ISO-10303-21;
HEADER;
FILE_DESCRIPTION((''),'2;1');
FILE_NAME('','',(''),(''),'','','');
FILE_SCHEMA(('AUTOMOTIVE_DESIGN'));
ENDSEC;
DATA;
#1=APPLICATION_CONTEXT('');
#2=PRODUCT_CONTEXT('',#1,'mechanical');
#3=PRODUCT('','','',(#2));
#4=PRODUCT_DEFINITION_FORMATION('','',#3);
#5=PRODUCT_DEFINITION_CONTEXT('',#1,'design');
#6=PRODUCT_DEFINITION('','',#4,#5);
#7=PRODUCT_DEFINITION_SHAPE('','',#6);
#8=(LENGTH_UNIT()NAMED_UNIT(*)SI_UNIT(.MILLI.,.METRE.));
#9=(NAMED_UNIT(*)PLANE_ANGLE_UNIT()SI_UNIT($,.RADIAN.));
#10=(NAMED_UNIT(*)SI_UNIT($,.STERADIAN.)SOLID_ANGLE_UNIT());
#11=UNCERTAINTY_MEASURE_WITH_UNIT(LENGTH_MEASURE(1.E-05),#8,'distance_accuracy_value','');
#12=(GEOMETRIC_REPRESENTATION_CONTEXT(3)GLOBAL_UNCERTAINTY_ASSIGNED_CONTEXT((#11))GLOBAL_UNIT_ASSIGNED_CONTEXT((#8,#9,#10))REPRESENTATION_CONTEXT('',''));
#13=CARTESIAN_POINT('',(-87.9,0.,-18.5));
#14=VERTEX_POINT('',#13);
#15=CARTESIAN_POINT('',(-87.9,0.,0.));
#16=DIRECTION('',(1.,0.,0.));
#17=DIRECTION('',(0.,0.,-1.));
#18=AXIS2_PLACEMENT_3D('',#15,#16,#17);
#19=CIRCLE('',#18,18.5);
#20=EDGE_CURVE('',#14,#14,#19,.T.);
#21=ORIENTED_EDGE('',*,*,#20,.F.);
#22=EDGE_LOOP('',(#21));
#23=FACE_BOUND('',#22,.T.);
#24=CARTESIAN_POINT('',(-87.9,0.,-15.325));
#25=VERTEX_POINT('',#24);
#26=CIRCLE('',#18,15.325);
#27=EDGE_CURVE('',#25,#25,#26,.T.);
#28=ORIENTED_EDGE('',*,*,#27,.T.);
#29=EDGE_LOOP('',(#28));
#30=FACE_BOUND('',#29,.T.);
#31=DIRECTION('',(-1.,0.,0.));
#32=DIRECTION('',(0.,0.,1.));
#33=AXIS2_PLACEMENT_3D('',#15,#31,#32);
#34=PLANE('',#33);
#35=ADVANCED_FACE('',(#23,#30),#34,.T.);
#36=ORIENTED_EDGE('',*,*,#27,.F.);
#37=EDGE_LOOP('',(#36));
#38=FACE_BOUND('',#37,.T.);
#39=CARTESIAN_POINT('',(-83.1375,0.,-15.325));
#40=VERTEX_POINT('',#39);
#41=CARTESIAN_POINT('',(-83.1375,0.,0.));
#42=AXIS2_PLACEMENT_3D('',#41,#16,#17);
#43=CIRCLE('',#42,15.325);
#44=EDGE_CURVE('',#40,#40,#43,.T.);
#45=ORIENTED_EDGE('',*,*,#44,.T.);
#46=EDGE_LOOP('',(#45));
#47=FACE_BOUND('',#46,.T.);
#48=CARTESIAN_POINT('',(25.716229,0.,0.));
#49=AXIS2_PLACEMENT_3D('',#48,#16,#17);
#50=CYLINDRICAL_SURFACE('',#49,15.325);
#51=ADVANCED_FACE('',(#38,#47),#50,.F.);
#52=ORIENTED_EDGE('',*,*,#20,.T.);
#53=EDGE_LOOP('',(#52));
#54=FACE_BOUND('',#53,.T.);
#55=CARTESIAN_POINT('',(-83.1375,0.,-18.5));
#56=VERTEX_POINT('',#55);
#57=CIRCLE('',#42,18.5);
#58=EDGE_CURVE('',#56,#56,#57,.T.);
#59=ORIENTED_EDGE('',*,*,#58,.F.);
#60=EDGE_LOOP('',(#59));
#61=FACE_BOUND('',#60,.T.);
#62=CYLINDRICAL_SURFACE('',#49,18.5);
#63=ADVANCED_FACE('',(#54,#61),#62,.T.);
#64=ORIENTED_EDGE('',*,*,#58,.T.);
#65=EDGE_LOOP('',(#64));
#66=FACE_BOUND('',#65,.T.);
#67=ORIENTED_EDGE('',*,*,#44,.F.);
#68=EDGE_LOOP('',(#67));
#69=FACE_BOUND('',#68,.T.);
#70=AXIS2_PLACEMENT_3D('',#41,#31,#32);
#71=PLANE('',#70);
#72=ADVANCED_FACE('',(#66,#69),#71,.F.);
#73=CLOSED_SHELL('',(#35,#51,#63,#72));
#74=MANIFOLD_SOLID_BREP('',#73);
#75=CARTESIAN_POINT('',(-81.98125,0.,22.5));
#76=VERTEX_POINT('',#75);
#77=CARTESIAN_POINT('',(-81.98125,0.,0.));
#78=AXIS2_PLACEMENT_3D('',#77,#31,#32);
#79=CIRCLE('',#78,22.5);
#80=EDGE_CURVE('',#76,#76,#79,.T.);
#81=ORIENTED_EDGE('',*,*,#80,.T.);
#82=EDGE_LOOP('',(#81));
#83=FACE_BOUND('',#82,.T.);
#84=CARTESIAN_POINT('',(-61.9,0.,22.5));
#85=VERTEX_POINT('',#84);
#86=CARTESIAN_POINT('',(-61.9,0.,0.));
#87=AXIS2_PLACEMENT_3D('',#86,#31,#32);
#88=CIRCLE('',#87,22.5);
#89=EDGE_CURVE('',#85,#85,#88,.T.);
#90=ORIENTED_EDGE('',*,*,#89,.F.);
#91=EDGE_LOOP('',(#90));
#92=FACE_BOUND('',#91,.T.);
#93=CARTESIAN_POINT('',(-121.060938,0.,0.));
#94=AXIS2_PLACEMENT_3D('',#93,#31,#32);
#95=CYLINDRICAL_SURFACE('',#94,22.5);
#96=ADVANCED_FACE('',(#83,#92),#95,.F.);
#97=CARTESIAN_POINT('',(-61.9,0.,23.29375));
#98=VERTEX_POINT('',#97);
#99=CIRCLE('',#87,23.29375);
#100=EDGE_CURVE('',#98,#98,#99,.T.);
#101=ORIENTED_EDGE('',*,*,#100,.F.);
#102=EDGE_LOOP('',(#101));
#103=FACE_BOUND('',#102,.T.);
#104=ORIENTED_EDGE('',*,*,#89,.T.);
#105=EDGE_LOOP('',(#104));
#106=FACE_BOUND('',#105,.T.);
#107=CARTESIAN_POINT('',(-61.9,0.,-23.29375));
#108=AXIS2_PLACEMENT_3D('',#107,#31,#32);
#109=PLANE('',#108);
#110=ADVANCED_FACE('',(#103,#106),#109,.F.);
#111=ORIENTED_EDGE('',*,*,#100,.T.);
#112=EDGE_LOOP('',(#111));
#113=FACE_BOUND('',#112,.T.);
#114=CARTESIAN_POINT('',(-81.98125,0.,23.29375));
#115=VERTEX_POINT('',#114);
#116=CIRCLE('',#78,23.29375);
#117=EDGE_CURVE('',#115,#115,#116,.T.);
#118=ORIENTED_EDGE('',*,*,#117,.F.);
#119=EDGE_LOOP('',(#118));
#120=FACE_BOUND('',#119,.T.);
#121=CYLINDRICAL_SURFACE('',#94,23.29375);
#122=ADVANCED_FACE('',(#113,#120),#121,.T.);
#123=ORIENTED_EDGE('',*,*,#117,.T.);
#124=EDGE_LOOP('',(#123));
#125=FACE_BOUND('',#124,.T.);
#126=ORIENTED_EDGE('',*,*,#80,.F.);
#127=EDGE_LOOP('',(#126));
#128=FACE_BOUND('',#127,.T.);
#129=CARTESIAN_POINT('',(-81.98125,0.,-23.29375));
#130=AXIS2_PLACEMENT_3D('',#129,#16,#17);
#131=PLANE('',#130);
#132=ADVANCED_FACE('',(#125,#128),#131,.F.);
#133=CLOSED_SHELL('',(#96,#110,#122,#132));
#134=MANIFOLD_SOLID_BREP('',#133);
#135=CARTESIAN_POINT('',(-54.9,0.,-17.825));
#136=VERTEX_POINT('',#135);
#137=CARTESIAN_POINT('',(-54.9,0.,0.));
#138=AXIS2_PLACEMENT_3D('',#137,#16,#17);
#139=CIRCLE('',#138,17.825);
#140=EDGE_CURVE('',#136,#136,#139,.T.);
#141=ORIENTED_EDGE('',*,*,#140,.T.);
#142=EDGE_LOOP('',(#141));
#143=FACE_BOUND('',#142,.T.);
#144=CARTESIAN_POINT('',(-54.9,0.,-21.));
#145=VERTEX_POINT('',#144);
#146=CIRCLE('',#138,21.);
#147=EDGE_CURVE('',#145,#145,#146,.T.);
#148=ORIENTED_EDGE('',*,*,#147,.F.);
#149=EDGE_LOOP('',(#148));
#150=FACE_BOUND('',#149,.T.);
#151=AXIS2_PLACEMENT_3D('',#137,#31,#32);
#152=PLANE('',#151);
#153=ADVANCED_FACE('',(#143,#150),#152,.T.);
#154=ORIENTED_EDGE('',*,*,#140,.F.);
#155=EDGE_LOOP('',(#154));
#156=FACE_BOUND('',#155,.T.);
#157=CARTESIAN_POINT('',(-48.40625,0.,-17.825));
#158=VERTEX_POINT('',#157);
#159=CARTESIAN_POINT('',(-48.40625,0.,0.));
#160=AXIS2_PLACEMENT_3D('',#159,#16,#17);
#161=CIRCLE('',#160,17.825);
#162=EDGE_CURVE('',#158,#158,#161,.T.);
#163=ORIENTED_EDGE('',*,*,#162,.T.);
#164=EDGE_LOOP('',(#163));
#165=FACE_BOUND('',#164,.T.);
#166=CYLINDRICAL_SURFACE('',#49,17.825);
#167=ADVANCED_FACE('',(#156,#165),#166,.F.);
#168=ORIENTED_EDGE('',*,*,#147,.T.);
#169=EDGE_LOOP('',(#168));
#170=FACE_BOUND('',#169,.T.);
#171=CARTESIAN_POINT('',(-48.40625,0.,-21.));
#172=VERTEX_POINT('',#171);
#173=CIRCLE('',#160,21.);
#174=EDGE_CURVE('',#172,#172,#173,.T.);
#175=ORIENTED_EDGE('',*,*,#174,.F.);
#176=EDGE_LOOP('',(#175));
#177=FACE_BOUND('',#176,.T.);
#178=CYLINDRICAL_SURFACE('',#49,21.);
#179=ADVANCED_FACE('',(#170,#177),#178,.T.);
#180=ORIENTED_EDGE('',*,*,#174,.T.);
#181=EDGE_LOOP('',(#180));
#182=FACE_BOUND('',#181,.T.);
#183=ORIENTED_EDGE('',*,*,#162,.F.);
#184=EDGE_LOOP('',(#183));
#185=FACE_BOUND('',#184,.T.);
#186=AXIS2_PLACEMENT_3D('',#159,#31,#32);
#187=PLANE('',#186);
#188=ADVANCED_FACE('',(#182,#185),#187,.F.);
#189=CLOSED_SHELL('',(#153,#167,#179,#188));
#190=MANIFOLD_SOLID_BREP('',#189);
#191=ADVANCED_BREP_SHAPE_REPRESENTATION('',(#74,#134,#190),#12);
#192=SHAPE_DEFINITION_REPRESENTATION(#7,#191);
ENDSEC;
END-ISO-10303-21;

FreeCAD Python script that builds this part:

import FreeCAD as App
import Part
import Sketcher
from FreeCAD import Vector
Q = App.Units.Quantity

doc = App.newDocument("Part")
body = doc.addObject("PartDesign::Body", "Body")
body.AllowCompound = True

# Sketch on XY plane
sketch1 = doc.addObject("Sketcher::SketchObject", "Sketch")
body.addObject(sketch1)
sketch1.AttachmentSupport = (doc.XY_Plane, [""])
sketch1.MapMode = "FlatFace"
sketch1.addGeometry([
    Part.LineSegment(Vector(-54.9, 21, 0), Vector(-54.9, 17.825, 0)),  # 0
    Part.LineSegment(Vector(-54.9, 17.825, 0), Vector(-48.40625, 17.825, 0)),  # 1
    Part.LineSegment(Vector(-48.40625, 17.825, 0), Vector(-48.40625, 21, 0)),  # 2
    Part.LineSegment(Vector(-48.40625, 21, 0), Vector(-54.9, 21, 0)),  # 3
    Part.LineSegment(Vector(-87.9, 18.5, 0), Vector(-87.9, 15.325, 0)),  # 4
    Part.LineSegment(Vector(-87.9, 15.325, 0), Vector(-83.1375, 15.325, 0)),  # 5
    Part.LineSegment(Vector(-83.1375, 15.325, 0), Vector(-83.1375, 18.5, 0)),  # 6
    Part.LineSegment(Vector(-83.1375, 18.5, 0), Vector(-87.9, 18.5, 0)),  # 7
], False)
sketch1.addConstraint([
    Sketcher.Constraint("Coincident", 0, 2, 1, 1),
    Sketcher.Constraint("Coincident", 1, 2, 2, 1),
    Sketcher.Constraint("Coincident", 2, 2, 3, 1),
    Sketcher.Constraint("Coincident", 3, 2, 0, 1),
    Sketcher.Constraint("Coincident", 4, 2, 5, 1),
    Sketcher.Constraint("Coincident", 5, 2, 6, 1),
    Sketcher.Constraint("Coincident", 6, 2, 7, 1),
    Sketcher.Constraint("Coincident", 7, 2, 4, 1),
    Sketcher.Constraint("Vertical", 0),
    Sketcher.Constraint("Horizontal", 1),
    Sketcher.Constraint("Vertical", 2),
    Sketcher.Constraint("Horizontal", 3),
    Sketcher.Constraint("Vertical", 4),
    Sketcher.Constraint("Horizontal", 5),
    Sketcher.Constraint("Vertical", 6),
    Sketcher.Constraint("Horizontal", 7),
    Sketcher.Constraint("Equal", 2, 4),
    Sketcher.Constraint("DistanceX", 5, 1, 5, 2, Q("0.1875 in")),
    Sketcher.Constraint("DistanceY", 0, 2, 0, 1, Q("0.125 in")),
    Sketcher.Constraint("DistanceX", 1, 1, 1, 2, 6.49375),
    Sketcher.Constraint("DistanceX", 0, 2, -1, 1, 54.9),
    Sketcher.Constraint("DistanceY", -1, 1, 0, 2, 17.825),
    Sketcher.Constraint("DistanceX", 4, 2, -1, 1, 87.9),
    Sketcher.Constraint("DistanceY", -1, 1, 4, 2, 15.325),
])
revolution = doc.addObject("PartDesign::Revolution", "Revolution")
body.addObject(revolution)
revolution.Profile = sketch1
revolution.ReferenceAxis = (sketch1, ["H_Axis"])
revolution.Angle = 360
body2 = doc.addObject("PartDesign::Body", "Body001")

# Sketch on XZ plane
sketch2 = doc.addObject("Sketcher::SketchObject", "Sketch001")
body2.addObject(sketch2)
sketch2.AttachmentSupport = (doc.getObject("XZ_Plane001"), [""])
sketch2.MapMode = "FlatFace"
sketch2.addGeometry([
    Part.LineSegment(Vector(-81.98125, -23.29375, 0), Vector(-81.98125, -22.5, 0)),
    Part.LineSegment(Vector(-81.98125, -22.5, 0), Vector(-61.9, -22.5, 0)),
    Part.LineSegment(Vector(-61.9, -22.5, 0), Vector(-61.9, -23.29375, 0)),
    Part.LineSegment(Vector(-61.9, -23.29375, 0), Vector(-81.98125, -23.29375, 0)),
], False)
sketch2.addConstraint([
    Sketcher.Constraint("Coincident", 0, 2, 1, 1),
    Sketcher.Constraint("Coincident", 1, 2, 2, 1),
    Sketcher.Constraint("Coincident", 2, 2, 3, 1),
    Sketcher.Constraint("Coincident", 3, 2, 0, 1),
    Sketcher.Constraint("Vertical", 0),
    Sketcher.Constraint("Horizontal", 1),
    Sketcher.Constraint("Vertical", 2),
    Sketcher.Constraint("Horizontal", 3),
    Sketcher.Constraint("DistanceY", 0, 1, 0, 2, Q("0.03125 in")),
    Sketcher.Constraint("DistanceX", 1, 1, 1, 2, 20.08125),
    Sketcher.Constraint("DistanceY", 0, 2, -1, 1, 22.5),
    Sketcher.Constraint("DistanceX", 1, 2, -1, 1, 61.9),
])
revolution2 = doc.addObject("PartDesign::Revolution", "Revolution001")
body2.addObject(revolution2)
revolution2.Profile = sketch2
revolution2.ReferenceAxis = (sketch2, ["H_Axis"])
revolution2.Angle = 360

doc.recompute()
